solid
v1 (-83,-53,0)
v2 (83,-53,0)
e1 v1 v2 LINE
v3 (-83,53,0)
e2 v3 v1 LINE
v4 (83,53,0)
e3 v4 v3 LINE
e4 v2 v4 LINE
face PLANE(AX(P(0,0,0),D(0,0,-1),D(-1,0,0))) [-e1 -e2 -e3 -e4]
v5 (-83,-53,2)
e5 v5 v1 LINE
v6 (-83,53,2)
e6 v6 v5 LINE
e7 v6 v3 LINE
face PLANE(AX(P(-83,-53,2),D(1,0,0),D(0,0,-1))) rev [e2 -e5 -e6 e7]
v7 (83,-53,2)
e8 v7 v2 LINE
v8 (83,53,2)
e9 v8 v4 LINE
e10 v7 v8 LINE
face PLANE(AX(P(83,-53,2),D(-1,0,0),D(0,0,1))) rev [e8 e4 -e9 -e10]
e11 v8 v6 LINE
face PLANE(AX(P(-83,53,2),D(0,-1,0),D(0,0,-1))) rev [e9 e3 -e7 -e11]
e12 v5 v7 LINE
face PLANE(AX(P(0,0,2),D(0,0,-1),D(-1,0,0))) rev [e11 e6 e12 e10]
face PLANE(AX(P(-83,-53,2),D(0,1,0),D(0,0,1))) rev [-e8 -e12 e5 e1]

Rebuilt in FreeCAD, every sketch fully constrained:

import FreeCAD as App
import Part
import Sketcher

V = App.Vector
Q = App.Units.Quantity


def add_polygon(sketch, points):
    """Adds a closed chain of lines whose ends are joined by coincident constraints."""
    first, n = sketch.GeometryCount, len(points)
    for a, b in zip(points, points[1:] + points[:1]):
        sketch.addGeometry(Part.LineSegment(App.Vector(*a, 0), App.Vector(*b, 0)), False)
    for i in range(n):
        sketch.addConstraint(Sketcher.Constraint("Coincident", first + i, 2, first + (i + 1) % n, 1))

doc = App.newDocument("Part")
body = doc.addObject("PartDesign::Body", "Body")

sketch1 = body.newObject("Sketcher::SketchObject", "Sketch")
sketch1.AttachmentSupport = (doc.getObject("XY_Plane"), [""])
sketch1.MapMode = "FlatFace"
add_polygon(sketch1, [(-83, 53), (-83, -53), (83, -53), (83, 53)])
sketch1.addConstraint(Sketcher.Constraint("Vertical", 0))
sketch1.addConstraint(Sketcher.Constraint("Horizontal", 1))
sketch1.addConstraint(Sketcher.Constraint("Vertical", 2))
sketch1.addConstraint(Sketcher.Constraint("Horizontal", 3))
sketch1.addConstraint(Sketcher.Constraint("Symmetric", 0, 2, 2, 2, -1, 1))
sketch1.addConstraint(Sketcher.Constraint("DistanceX", 1, 1, 1, 2, Q("166 mm")))
sketch1.addConstraint(Sketcher.Constraint("DistanceY", 0, 2, 0, 1, Q("106 mm")))
pad1 = body.newObject("PartDesign::Pad", "Pad")
pad1.Profile = sketch1
pad1.Length = 2

doc.recompute()
